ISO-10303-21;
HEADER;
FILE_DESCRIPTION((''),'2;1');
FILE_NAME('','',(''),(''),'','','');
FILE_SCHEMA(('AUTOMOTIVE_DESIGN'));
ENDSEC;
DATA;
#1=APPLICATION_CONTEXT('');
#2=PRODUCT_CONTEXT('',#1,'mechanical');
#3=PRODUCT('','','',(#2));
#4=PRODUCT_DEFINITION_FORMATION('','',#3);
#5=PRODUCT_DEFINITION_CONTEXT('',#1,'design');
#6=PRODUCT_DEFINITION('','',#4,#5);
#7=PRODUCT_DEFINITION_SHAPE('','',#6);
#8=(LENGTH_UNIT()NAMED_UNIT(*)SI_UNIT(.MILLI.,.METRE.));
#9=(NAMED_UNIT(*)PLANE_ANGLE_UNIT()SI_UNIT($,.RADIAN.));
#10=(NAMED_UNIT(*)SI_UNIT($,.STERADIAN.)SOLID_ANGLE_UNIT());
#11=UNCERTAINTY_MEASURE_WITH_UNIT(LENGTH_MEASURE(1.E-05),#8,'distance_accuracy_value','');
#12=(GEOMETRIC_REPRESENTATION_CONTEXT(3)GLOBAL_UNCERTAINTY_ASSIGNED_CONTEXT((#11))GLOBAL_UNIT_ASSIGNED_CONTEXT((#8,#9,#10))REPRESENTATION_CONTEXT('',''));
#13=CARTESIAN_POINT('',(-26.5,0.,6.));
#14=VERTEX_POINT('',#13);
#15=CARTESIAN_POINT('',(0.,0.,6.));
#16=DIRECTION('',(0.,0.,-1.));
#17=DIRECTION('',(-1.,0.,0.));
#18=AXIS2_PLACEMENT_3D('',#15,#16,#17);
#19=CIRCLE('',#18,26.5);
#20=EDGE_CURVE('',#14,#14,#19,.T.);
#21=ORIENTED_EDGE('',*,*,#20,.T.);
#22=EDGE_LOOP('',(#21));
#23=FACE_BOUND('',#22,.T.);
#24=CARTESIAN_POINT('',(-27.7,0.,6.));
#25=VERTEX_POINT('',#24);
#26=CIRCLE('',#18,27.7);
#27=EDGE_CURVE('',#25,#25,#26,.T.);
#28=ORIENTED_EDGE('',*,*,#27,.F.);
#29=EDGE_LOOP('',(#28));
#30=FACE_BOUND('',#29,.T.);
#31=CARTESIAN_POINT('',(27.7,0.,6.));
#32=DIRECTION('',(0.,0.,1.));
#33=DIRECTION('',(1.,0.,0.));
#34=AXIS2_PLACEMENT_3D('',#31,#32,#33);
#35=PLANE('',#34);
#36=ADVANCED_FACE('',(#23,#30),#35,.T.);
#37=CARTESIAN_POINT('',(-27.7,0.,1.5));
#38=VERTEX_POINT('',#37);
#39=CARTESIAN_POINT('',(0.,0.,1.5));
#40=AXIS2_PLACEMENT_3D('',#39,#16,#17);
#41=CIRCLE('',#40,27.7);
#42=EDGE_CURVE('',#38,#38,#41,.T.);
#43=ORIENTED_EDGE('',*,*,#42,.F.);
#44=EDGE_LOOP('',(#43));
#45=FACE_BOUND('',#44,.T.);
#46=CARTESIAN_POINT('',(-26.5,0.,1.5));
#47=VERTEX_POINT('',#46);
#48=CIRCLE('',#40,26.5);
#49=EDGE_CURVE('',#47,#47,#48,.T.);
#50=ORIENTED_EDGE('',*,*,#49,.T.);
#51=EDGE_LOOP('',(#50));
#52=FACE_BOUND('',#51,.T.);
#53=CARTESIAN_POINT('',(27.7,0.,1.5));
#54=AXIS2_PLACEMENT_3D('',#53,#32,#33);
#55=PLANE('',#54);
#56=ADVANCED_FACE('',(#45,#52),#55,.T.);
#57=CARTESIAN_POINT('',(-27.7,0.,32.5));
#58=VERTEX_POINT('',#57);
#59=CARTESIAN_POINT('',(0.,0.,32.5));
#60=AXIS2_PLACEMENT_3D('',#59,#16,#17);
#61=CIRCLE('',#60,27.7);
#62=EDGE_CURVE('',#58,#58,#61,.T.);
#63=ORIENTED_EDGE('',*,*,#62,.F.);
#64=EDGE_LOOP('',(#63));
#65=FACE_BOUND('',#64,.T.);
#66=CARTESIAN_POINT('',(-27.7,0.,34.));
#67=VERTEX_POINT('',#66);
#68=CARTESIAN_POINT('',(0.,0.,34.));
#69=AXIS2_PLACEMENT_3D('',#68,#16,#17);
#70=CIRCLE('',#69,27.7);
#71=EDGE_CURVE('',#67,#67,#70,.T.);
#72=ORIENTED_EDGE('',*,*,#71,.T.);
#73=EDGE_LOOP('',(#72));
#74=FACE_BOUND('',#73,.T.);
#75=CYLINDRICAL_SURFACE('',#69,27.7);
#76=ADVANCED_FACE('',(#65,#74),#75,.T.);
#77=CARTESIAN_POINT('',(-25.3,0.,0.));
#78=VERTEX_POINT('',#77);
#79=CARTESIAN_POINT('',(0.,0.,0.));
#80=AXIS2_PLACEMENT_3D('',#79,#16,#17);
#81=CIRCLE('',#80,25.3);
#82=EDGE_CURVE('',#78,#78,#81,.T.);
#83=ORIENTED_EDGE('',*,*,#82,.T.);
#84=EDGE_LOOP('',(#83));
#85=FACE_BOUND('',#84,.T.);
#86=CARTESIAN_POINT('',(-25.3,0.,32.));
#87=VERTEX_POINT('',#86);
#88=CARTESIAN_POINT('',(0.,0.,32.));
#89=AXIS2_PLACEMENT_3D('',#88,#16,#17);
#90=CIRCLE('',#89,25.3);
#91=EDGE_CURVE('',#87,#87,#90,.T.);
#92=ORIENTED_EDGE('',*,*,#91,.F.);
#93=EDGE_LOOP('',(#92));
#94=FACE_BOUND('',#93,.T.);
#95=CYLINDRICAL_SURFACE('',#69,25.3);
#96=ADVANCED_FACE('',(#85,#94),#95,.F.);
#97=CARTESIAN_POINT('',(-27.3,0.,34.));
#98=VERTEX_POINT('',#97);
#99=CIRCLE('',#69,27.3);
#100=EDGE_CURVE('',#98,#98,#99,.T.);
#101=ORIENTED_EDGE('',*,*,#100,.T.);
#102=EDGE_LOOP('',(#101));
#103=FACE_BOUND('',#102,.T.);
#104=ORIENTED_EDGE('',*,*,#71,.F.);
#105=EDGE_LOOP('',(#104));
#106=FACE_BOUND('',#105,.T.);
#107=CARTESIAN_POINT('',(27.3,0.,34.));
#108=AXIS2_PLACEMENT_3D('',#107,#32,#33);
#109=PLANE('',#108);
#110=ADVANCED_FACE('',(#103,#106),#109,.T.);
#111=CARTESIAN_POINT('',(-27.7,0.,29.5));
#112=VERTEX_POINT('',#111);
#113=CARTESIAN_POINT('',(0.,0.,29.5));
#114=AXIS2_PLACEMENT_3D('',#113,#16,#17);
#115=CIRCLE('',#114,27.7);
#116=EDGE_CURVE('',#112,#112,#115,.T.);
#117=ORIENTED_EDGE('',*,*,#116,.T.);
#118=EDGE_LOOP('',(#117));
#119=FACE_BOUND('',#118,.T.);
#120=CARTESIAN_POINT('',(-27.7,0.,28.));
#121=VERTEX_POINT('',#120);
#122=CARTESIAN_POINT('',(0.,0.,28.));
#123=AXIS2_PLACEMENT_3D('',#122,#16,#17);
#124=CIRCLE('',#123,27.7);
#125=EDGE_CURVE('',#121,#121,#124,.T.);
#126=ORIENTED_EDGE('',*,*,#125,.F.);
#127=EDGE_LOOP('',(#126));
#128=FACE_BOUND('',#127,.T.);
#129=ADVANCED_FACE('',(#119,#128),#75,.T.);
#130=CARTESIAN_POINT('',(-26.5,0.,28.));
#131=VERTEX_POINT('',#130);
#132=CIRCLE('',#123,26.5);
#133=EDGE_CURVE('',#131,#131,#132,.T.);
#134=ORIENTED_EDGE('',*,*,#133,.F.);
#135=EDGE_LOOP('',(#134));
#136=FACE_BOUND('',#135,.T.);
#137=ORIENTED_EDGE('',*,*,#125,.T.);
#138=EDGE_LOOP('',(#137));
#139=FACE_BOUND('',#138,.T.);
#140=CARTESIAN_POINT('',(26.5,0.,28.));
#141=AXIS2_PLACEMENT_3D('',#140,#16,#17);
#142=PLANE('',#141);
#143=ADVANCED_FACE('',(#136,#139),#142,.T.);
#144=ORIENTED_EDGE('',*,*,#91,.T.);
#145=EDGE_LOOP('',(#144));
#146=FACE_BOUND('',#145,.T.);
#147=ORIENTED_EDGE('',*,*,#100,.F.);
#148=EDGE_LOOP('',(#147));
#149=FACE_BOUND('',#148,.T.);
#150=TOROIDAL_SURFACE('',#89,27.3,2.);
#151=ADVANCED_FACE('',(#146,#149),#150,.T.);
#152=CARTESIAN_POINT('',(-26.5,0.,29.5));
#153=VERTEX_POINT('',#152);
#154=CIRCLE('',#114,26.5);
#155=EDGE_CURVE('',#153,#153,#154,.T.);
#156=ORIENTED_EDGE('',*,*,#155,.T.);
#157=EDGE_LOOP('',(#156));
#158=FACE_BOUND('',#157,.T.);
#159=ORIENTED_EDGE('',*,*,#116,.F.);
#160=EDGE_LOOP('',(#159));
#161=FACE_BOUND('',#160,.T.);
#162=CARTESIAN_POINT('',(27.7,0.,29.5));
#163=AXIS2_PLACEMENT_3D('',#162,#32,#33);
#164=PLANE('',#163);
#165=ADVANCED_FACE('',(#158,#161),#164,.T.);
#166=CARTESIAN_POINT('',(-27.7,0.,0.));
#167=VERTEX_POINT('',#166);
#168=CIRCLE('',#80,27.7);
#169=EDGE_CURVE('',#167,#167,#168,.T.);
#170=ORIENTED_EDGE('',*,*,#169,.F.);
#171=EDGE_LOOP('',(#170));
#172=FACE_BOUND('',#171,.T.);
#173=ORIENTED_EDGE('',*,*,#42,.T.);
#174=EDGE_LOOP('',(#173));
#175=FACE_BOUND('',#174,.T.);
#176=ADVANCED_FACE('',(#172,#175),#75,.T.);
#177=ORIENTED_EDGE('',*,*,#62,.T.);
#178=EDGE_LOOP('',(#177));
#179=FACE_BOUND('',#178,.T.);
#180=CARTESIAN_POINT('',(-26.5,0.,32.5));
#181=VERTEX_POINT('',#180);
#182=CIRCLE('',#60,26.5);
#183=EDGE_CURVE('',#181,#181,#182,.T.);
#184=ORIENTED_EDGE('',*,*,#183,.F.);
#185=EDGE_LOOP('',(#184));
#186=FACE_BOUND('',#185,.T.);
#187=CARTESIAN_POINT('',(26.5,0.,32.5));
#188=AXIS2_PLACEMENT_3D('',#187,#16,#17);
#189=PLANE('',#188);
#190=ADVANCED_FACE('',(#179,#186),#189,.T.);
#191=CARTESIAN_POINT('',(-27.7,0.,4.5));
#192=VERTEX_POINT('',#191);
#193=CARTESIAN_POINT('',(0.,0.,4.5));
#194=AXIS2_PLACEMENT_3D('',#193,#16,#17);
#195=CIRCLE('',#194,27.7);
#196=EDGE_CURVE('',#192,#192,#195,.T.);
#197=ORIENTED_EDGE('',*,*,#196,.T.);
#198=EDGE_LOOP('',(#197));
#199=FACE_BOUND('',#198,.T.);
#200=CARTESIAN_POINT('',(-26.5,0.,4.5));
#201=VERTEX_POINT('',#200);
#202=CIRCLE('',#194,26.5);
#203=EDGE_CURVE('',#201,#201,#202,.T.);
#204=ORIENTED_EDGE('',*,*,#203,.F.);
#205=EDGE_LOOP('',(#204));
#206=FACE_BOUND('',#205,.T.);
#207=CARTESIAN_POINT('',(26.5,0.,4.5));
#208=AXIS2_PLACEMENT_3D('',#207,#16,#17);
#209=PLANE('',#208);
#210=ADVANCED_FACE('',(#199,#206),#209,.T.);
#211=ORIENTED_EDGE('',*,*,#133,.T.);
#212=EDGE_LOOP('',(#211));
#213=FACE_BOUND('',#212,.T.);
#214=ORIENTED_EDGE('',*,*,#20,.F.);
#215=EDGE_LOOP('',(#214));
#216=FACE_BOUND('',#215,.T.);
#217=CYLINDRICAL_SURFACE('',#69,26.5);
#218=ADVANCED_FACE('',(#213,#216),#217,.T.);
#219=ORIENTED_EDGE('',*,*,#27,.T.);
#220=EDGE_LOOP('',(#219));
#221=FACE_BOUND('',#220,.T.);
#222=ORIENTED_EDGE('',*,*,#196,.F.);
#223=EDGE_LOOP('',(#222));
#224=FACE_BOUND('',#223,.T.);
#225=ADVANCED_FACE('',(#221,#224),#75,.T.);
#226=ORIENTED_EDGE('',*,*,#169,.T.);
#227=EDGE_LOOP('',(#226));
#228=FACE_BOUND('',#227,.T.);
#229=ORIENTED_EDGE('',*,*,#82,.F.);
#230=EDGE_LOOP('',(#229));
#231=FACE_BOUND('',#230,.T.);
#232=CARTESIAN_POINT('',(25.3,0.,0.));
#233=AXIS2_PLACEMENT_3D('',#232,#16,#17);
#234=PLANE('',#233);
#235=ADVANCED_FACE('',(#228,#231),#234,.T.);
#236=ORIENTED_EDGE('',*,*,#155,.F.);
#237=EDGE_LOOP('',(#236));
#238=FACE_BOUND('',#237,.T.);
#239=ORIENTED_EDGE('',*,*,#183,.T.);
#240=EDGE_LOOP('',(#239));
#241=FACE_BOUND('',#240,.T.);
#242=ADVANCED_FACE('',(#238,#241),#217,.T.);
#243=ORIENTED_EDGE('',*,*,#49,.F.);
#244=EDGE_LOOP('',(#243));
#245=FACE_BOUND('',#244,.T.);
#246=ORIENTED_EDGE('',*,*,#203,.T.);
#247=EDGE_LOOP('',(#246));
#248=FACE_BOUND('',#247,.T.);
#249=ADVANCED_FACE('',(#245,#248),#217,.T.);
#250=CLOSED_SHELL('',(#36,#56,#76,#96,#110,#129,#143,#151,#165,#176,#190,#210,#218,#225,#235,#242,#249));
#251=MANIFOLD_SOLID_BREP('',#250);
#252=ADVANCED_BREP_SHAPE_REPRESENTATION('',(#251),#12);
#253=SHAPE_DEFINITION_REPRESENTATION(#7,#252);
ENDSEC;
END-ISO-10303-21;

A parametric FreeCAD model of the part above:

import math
import FreeCAD as App
import Part
import Sketcher
Q = App.Units.Quantity

doc = App.newDocument("Part")
params = doc.addObject("Spreadsheet::Sheet", "Params")
for row, (alias, value) in enumerate([
    ("sketch1_radius", "2 mm"),
    ("sketch1_height", "3 mm"),
    ("sketch1_height2", "22 mm"),
    ("sketch1_height3", "32 mm"),
    ("sketch1_width", "2.4 mm"),
    ("revolution_angle", "360 deg"),
], start=1):
    params.set(f"A{row}", alias)
    params.set(f"B{row}", "=" + value)
    params.setAlias(f"B{row}", alias)

body = doc.addObject("PartDesign::Body", "Body")

sketch1 = body.newObject("Sketcher::SketchObject", "Sketch")
sketch1.AttachmentSupport = (doc.getObject("XZ_Plane"), [""])
sketch1.MapMode = "FlatFace"
sketch1.addGeometry([
    Part.LineSegment(App.Vector(25.3, 0, 0), App.Vector(27.7, 0, 0)),
    Part.LineSegment(App.Vector(27.7, 0, 0), App.Vector(27.7, 1.5, 0)),
    Part.LineSegment(App.Vector(27.7, 1.5, 0), App.Vector(26.5, 1.5, 0)),
    Part.LineSegment(App.Vector(26.5, 1.5, 0), App.Vector(26.5, 4.5, 0)),
    Part.LineSegment(App.Vector(26.5, 4.5, 0), App.Vector(27.7, 4.5, 0)),
    Part.LineSegment(App.Vector(27.7, 4.5, 0), App.Vector(27.7, 6, 0)),
    Part.LineSegment(App.Vector(27.7, 6, 0), App.Vector(26.5, 6, 0)),
    Part.LineSegment(App.Vector(26.5, 6, 0), App.Vector(26.5, 28, 0)),
    Part.LineSegment(App.Vector(26.5, 28, 0), App.Vector(27.7, 28, 0)),
    Part.LineSegment(App.Vector(27.7, 28, 0), App.Vector(27.7, 29.5, 0)),
    Part.LineSegment(App.Vector(27.7, 29.5, 0), App.Vector(26.5, 29.5, 0)),
    Part.LineSegment(App.Vector(26.5, 29.5, 0), App.Vector(26.5, 32.5, 0)),
    Part.LineSegment(App.Vector(26.5, 32.5, 0), App.Vector(27.7, 32.5, 0)),
    Part.LineSegment(App.Vector(27.7, 32.5, 0), App.Vector(27.7, 34, 0)),
    Part.LineSegment(App.Vector(27.7, 34, 0), App.Vector(27.3, 34, 0)),
    Part.ArcOfCircle(Part.Circle(App.Vector(27.3, 32, 0), App.Vector(0, 0, 1), 2), math.radians(90), math.radians(180)),
    Part.LineSegment(App.Vector(25.3, 32, 0), App.Vector(25.3, 0, 0)),
], False)
sketch1.addConstraint([
    Sketcher.Constraint("Coincident", 0, 2, 1, 1),
    Sketcher.Constraint("Coincident", 1, 2, 2, 1),
    Sketcher.Constraint("Coincident", 2, 2, 3, 1),
    Sketcher.Constraint("Coincident", 3, 2, 4, 1),
    Sketcher.Constraint("Coincident", 4, 2, 5, 1),
    Sketcher.Constraint("Coincident", 5, 2, 6, 1),
    Sketcher.Constraint("Coincident", 6, 2, 7, 1),
    Sketcher.Constraint("Coincident", 7, 2, 8, 1),
    Sketcher.Constraint("Coincident", 8, 2, 9, 1),
    Sketcher.Constraint("Coincident", 9, 2, 10, 1),
    Sketcher.Constraint("Coincident", 10, 2, 11, 1),
    Sketcher.Constraint("Coincident", 11, 2, 12, 1),
    Sketcher.Constraint("Coincident", 12, 2, 13, 1),
    Sketcher.Constraint("Coincident", 13, 2, 14, 1),
    Sketcher.Constraint("Tangent", 14, 2, 15, 1),
    Sketcher.Constraint("Tangent", 15, 2, 16, 1),
    Sketcher.Constraint("Coincident", 16, 2, 0, 1),
    Sketcher.Constraint("Horizontal", 0),
    Sketcher.Constraint("Vertical", 1),
    Sketcher.Constraint("Horizontal", 2),
    Sketcher.Constraint("Vertical", 3),
    Sketcher.Constraint("Horizontal", 4),
    Sketcher.Constraint("Vertical", 5),
    Sketcher.Constraint("Horizontal", 6),
    Sketcher.Constraint("Vertical", 7),
    Sketcher.Constraint("Horizontal", 8),
    Sketcher.Constraint("Vertical", 9),
    Sketcher.Constraint("Horizontal", 10),
    Sketcher.Constraint("Vertical", 11),
    Sketcher.Constraint("Horizontal", 12),
    Sketcher.Constraint("Vertical", 13),
    Sketcher.Constraint("Horizontal", 14),
    Sketcher.Constraint("Vertical", 16),
    Sketcher.Constraint("PointOnObject", 0, 2, -1),
    Sketcher.Constraint("Vertical", 1, 2, 4, 2),
    Sketcher.Constraint("Vertical", 3, 2, 6, 2),
    Sketcher.Constraint("Vertical", 5, 2, 8, 2),
    Sketcher.Constraint("Vertical", 7, 2, 10, 2),
    Sketcher.Constraint("Vertical", 9, 2, 12, 2),
    Sketcher.Constraint("Equal", 1, 5),
    Sketcher.Constraint("Equal", 5, 9),
    Sketcher.Constraint("Equal", 3, 11),
    Sketcher.Constraint("Equal", 9, 13),
    Sketcher.Constraint("Radius", 15, Q("2 mm")),
    Sketcher.Constraint("DistanceY", 3, 1, 3, 2, Q("3 mm")),
    Sketcher.Constraint("DistanceY", 7, 1, 7, 2, Q("22 mm")),
    Sketcher.Constraint("DistanceY", 16, 2, 16, 1, Q("32 mm")),
    Sketcher.Constraint("DistanceX", 0, 1, 0, 2, Q("2.4 mm")),
    Sketcher.Constraint("DistanceX", 2, 2, 2, 1, Q("1.2 mm")),
    Sketcher.Constraint("DistanceX", -1, 1, 15, 3, Q("27.3 mm")),
])
sketch1.setExpression("Constraints[43]", "Params.sketch1_radius")
sketch1.setExpression("Constraints[44]", "Params.sketch1_height")
sketch1.setExpression("Constraints[45]", "Params.sketch1_height2")
sketch1.setExpression("Constraints[46]", "Params.sketch1_height3")
sketch1.setExpression("Constraints[47]", "Params.sketch1_width")
revolution = body.newObject("PartDesign::Revolution", "Revolution")
revolution.Profile = sketch1
revolution.ReferenceAxis = (sketch1, ["V_Axis"])
revolution.setExpression("Angle", "Params.revolution_angle")

doc.recompute()
